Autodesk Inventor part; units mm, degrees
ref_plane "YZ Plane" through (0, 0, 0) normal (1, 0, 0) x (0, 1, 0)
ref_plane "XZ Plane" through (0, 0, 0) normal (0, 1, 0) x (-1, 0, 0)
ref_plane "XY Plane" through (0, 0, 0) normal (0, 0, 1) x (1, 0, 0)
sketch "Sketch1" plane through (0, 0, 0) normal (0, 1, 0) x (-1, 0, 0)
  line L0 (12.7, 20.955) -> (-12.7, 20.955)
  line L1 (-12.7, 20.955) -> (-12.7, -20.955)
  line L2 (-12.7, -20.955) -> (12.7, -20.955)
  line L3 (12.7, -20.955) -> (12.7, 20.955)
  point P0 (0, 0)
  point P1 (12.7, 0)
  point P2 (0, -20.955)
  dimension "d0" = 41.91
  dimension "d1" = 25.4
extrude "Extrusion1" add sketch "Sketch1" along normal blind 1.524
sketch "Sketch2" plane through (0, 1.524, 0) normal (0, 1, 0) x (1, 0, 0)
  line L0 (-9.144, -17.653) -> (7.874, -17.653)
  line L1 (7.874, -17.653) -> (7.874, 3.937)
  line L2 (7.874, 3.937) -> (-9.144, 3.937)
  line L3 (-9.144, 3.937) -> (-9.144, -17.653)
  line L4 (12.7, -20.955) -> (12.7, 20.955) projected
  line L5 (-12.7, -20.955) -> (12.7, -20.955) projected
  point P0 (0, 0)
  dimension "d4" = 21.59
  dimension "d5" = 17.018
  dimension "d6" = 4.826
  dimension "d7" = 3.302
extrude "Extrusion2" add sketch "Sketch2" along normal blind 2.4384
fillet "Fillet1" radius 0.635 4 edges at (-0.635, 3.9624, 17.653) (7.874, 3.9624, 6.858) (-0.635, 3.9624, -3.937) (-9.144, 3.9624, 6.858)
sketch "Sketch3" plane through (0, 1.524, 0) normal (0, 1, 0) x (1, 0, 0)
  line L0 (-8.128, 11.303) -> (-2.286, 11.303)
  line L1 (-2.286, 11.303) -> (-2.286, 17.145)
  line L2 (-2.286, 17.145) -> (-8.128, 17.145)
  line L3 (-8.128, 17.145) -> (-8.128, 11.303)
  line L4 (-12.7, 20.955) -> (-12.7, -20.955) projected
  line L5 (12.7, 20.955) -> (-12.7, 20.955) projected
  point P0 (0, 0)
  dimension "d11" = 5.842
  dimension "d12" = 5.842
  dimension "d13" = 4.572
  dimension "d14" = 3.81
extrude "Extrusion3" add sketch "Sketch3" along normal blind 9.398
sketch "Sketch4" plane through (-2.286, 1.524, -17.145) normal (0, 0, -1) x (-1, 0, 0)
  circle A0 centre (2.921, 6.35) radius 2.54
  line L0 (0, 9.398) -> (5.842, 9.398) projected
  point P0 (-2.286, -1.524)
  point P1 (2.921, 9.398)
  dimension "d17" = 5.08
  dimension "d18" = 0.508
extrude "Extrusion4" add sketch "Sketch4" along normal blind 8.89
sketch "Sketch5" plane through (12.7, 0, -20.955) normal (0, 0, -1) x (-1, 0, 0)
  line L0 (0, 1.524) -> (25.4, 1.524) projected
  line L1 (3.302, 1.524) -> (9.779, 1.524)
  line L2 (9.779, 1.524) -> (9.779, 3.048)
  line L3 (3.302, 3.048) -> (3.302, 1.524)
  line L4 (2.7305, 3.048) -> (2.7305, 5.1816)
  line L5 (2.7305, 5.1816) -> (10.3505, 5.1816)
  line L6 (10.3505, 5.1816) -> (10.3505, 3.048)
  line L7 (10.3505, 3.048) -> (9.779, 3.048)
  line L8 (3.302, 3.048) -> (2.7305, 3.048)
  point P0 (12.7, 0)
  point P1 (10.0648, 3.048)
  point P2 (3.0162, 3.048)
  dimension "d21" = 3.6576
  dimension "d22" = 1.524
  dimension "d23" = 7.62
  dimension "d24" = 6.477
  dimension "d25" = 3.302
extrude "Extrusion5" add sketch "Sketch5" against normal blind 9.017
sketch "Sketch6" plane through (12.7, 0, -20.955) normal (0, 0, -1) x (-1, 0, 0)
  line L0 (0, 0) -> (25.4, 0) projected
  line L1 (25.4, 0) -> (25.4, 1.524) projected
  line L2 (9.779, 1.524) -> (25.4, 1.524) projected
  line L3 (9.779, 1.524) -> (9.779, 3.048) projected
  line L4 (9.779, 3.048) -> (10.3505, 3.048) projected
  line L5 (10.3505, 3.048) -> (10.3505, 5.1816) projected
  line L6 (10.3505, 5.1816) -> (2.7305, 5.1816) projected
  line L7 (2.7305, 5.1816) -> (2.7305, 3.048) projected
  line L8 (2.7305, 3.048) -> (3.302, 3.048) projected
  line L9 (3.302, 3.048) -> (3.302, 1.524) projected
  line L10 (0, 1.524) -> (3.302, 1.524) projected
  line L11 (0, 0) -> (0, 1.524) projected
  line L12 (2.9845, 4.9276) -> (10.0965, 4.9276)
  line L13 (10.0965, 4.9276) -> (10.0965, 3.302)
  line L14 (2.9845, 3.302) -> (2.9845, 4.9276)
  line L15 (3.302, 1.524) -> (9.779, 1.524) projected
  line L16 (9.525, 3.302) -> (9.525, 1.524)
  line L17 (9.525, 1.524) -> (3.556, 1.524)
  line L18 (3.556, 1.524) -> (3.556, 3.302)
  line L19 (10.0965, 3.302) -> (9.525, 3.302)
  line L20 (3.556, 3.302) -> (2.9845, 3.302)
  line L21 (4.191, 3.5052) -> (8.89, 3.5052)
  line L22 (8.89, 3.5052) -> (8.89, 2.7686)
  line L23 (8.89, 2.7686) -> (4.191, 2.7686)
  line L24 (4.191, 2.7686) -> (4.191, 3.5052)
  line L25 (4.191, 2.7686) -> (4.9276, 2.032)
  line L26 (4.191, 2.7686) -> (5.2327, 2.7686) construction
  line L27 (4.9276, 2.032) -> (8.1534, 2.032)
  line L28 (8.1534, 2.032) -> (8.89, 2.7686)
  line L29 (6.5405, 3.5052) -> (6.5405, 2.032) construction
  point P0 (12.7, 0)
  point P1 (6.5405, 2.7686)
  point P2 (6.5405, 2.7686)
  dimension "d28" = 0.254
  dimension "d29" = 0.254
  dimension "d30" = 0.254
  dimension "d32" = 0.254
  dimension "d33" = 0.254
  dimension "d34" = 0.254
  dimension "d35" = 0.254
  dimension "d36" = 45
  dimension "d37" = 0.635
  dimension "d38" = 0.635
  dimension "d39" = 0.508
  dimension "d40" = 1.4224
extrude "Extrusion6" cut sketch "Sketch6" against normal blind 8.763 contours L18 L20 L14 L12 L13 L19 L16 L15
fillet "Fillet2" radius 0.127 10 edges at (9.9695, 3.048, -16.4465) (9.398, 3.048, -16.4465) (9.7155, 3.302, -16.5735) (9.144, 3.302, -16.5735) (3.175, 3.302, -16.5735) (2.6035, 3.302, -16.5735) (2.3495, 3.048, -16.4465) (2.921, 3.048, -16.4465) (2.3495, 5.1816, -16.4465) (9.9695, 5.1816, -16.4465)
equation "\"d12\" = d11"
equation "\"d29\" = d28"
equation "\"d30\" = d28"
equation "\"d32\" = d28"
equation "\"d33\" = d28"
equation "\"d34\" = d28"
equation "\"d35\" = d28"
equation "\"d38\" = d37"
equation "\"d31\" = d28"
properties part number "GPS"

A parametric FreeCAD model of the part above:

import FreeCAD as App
import Part
import Sketcher
from FreeCAD import Vector
Q = App.Units.Quantity


def edges_at(feature, points):
    """Names of the edges that pass closest to the given points."""
    edges = feature.Shape.Edges
    near = lambda p: min(range(len(edges)), key=lambda i: edges[i].distToShape(Part.Vertex(*p))[0])
    return sorted({f"Edge{near(p) + 1}" for p in points})

doc = App.newDocument("Part")
params = doc.addObject("Spreadsheet::Sheet", "Params")
for row, (alias, value) in enumerate([
    ("sketch1_width", "1 in"),
    ("sketch1_height", "1.65 in"),
    ("pad1_length", "0.06 in"),
    ("sketch2_width", "0.67 in"),
    ("sketch2_height", "0.85 in"),
    ("pad2_length", "0.096 in"),
    ("fillet_radius", "0.025 in"),
    ("sketch3_width", "0.23 in"),
    ("pad3_length", "0.37 in"),
    ("sketch4_diameter", "0.2 in"),
    ("pad4_length", "0.35 in"),
    ("sketch5_width", "0.3 in"),
    ("sketch5_height", "0.06 in"),
    ("sketch5_width2", "0.255 in"),
    ("pad5_length", "0.355 in"),
    ("sketch6_width", "0.28 in"),
    ("sketch6_height", "0.07 in"),
    ("sketch6_width2", "0.235 in"),
    ("sketch6_width3", "0.127 in"),
    ("sketch6_height2", "0.064 in"),
    ("pocket1_length", "0.345 in"),
    ("fillet2_radius", "0.005 in"),
], start=1):
    params.set(f"A{row}", alias)
    params.set(f"B{row}", "=" + value)
    params.setAlias(f"B{row}", alias)

body = doc.addObject("PartDesign::Body", "Body")

sketch1 = body.newObject("Sketcher::SketchObject", "Sketch")
sketch1.AttachmentSupport = (doc.getObject("XZ_Plane"), [""])
sketch1.MapMode = "FlatFace"
sketch1.addGeometry([
    Part.LineSegment(Vector(-13, -21, 0), Vector(-13, 21, 0)),
    Part.LineSegment(Vector(-13, 21, 0), Vector(13, 21, 0)),
    Part.LineSegment(Vector(13, 21, 0), Vector(13, -21, 0)),
    Part.LineSegment(Vector(13, -21, 0), Vector(-13, -21, 0)),
], False)
sketch1.addConstraint([
    Sketcher.Constraint("Coincident", 0, 2, 1, 1),
    Sketcher.Constraint("Coincident", 1, 2, 2, 1),
    Sketcher.Constraint("Coincident", 2, 2, 3, 1),
    Sketcher.Constraint("Coincident", 3, 2, 0, 1),
    Sketcher.Constraint("Vertical", 0),
    Sketcher.Constraint("Horizontal", 1),
    Sketcher.Constraint("Vertical", 2),
    Sketcher.Constraint("Horizontal", 3),
    Sketcher.Constraint("Symmetric", 0, 2, 2, 2, -1, 1),
    Sketcher.Constraint("DistanceX", 1, 1, 1, 2, Q("1 in")),
    Sketcher.Constraint("DistanceY", 0, 1, 0, 2, Q("1.65 in")),
])
sketch1.setExpression("Constraints[9]", "Params.sketch1_width")
sketch1.setExpression("Constraints[10]", "Params.sketch1_height")
pad1 = body.newObject("PartDesign::Pad", "Pad")
pad1.Profile = sketch1
pad1.setExpression("Length", "Params.pad1_length")
pad1.Reversed = True

sketch2 = body.newObject("Sketcher::SketchObject", "Sketch001")
sketch2.AttachmentSupport = (doc.getObject("XZ_Plane"), [""])
sketch2.MapMode = "FlatFace"
sketch2.AttachmentOffset = App.Placement(Vector(0, 0, -0.06 * 25.4), App.Rotation())
sketch2.addGeometry([
    Part.LineSegment(Vector(-9, -4, 0), Vector(-9, 18, 0)),
    Part.LineSegment(Vector(-9, 18, 0), Vector(8, 18, 0)),
    Part.LineSegment(Vector(8, 18, 0), Vector(8, -4, 0)),
    Part.LineSegment(Vector(8, -4, 0), Vector(-9, -4, 0)),
], False)
sketch2.addConstraint([
    Sketcher.Constraint("Coincident", 0, 2, 1, 1),
    Sketcher.Constraint("Coincident", 1, 2, 2, 1),
    Sketcher.Constraint("Coincident", 2, 2, 3, 1),
    Sketcher.Constraint("Coincident", 3, 2, 0, 1),
    Sketcher.Constraint("Vertical", 0),
    Sketcher.Constraint("Horizontal", 1),
    Sketcher.Constraint("Vertical", 2),
    Sketcher.Constraint("Horizontal", 3),
    Sketcher.Constraint("DistanceX", 1, 1, 1, 2, Q("0.67 in")),
    Sketcher.Constraint("DistanceY", 0, 1, 0, 2, Q("0.85 in")),
    Sketcher.Constraint("DistanceX", 0, 2, -1, 1, Q("0.36 in")),
    Sketcher.Constraint("DistanceY", -1, 1, 0, 2, Q("0.695 in")),
])
sketch2.setExpression("Constraints[8]", "Params.sketch2_width")
sketch2.setExpression("Constraints[9]", "Params.sketch2_height")
pad2 = body.newObject("PartDesign::Pad", "Pad001")
pad2.Profile = sketch2
pad2.setExpression("Length", "Params.pad2_length")
pad2.Reversed = True
doc.recompute()

fillet = body.newObject("PartDesign::Fillet", "Fillet")
fillet.Base = (pad2, edges_at(pad2, [
    (-0.635, 3.962, 17.653),
    (7.874, 3.962, 6.858),
    (-0.635, 3.962, -3.937),
    (-9.144, 3.962, 6.858),
]))
fillet.setExpression("Radius", "Params.fillet_radius")

sketch3 = body.newObject("Sketcher::SketchObject", "Sketch002")
sketch3.AttachmentSupport = (doc.getObject("XZ_Plane"), [""])
sketch3.MapMode = "FlatFace"
sketch3.AttachmentOffset = App.Placement(Vector(0, 0, -0.06 * 25.4), App.Rotation())
sketch3.addGeometry([
    Part.LineSegment(Vector(-8, -17, 0), Vector(-8, -11, 0)),
    Part.LineSegment(Vector(-8, -11, 0), Vector(-2, -11, 0)),
    Part.LineSegment(Vector(-2, -11, 0), Vector(-2, -17, 0)),
    Part.LineSegment(Vector(-2, -17, 0), Vector(-8, -17, 0)),
], False)
sketch3.addConstraint([
    Sketcher.Constraint("Coincident", 0, 2, 1, 1),
    Sketcher.Constraint("Coincident", 1, 2, 2, 1),
    Sketcher.Constraint("Coincident", 2, 2, 3, 1),
    Sketcher.Constraint("Coincident", 3, 2, 0, 1),
    Sketcher.Constraint("Vertical", 0),
    Sketcher.Constraint("Horizontal", 1),
    Sketcher.Constraint("Vertical", 2),
    Sketcher.Constraint("Horizontal", 3),
    Sketcher.Constraint("Equal", 3, 0),
    Sketcher.Constraint("DistanceX", 1, 1, 1, 2, Q("0.23 in")),
    Sketcher.Constraint("DistanceX", 0, 2, -1, 1, Q("0.32 in")),
    Sketcher.Constraint("DistanceY", 0, 2, -1, 1, Q("0.445 in")),
])
sketch3.setExpression("Constraints[9]", "Params.sketch3_width")
pad3 = body.newObject("PartDesign::Pad", "Pad002")
pad3.Profile = sketch3
pad3.setExpression("Length", "Params.pad3_length")
pad3.Reversed = True

sketch4 = body.newObject("Sketcher::SketchObject", "Sketch003")
sketch4.AttachmentSupport = (doc.getObject("XY_Plane"), [""])
sketch4.MapMode = "FlatFace"
sketch4.AttachmentOffset = App.Placement(Vector(0, 0, -0.675 * 25.4), App.Rotation())
sketch4.addGeometry(Part.Circle(Vector(-5.2, 7.9, 0), Vector(0, 0, 1), 2.5), False)
sketch4.addConstraint([
    Sketcher.Constraint("Diameter", 0, Q("0.2 in")),
    Sketcher.Constraint("DistanceY", -1, 1, 0, 3, Q("0.31 in")),
    Sketcher.Constraint("DistanceX", 0, 3, -1, 1, Q("0.205 in")),
])
sketch4.setExpression("Constraints[0]", "Params.sketch4_diameter")
pad4 = body.newObject("PartDesign::Pad", "Pad003")
pad4.Profile = sketch4
pad4.setExpression("Length", "Params.pad4_length")
pad4.Reversed = True

sketch5 = body.newObject("Sketcher::SketchObject", "Sketch004")
sketch5.AttachmentSupport = (doc.getObject("XY_Plane"), [""])
sketch5.MapMode = "FlatFace"
sketch5.AttachmentOffset = App.Placement(Vector(0, 0, -0.825 * 25.4), App.Rotation())
sketch5.addGeometry([
    Part.LineSegment(Vector(9.4, 3, 0), Vector(9.4, 1.5, 0)),
    Part.LineSegment(Vector(9.4, 1.5, 0), Vector(2.9, 1.5, 0)),
    Part.LineSegment(Vector(2.9, 1.5, 0), Vector(2.9, 3, 0)),
    Part.LineSegment(Vector(2.9, 3, 0), Vector(2.3, 3, 0)),
    Part.LineSegment(Vector(2.3, 3, 0), Vector(2.3, 5.2, 0)),
    Part.LineSegment(Vector(2.3, 5.2, 0), Vector(10, 5.2, 0)),
    Part.LineSegment(Vector(10, 5.2, 0), Vector(10, 3, 0)),
    Part.LineSegment(Vector(10, 3, 0), Vector(9.4, 3, 0)),
], False)
sketch5.addConstraint([
    Sketcher.Constraint("Coincident", 0, 2, 1, 1),
    Sketcher.Constraint("Coincident", 1, 2, 2, 1),
    Sketcher.Constraint("Coincident", 2, 2, 3, 1),
    Sketcher.Constraint("Coincident", 3, 2, 4, 1),
    Sketcher.Constraint("Coincident", 4, 2, 5, 1),
    Sketcher.Constraint("Coincident", 5, 2, 6, 1),
    Sketcher.Constraint("Coincident", 6, 2, 7, 1),
    Sketcher.Constraint("Coincident", 7, 2, 0, 1),
    Sketcher.Constraint("Vertical", 0),
    Sketcher.Constraint("Horizontal", 1),
    Sketcher.Constraint("Vertical", 2),
    Sketcher.Constraint("Horizontal", 3),
    Sketcher.Constraint("Vertical", 4),
    Sketcher.Constraint("Horizontal", 5),
    Sketcher.Constraint("Vertical", 6),
    Sketcher.Constraint("Horizontal", 7),
    Sketcher.Constraint("Horizontal", 3, 2, 6, 2),
    Sketcher.Constraint("Equal", 3, 7),
    Sketcher.Constraint("DistanceX", 5, 1, 5, 2, Q("0.3 in")),
    Sketcher.Constraint("DistanceY", 0, 2, 0, 1, Q("0.06 in")),
    Sketcher.Constraint("DistanceX", 1, 2, 1, 1, Q("0.255 in")),
    Sketcher.Constraint("DistanceY", -1, 1, 0, 2, Q("0.06 in")),
    Sketcher.Constraint("DistanceY", 1, 2, 4, 2, Q("0.144 in")),
    Sketcher.Constraint("DistanceX", -1, 1, 0, 2, Q("0.37 in")),
])
sketch5.setExpression("Constraints[18]", "Params.sketch5_width")
sketch5.setExpression("Constraints[19]", "Params.sketch5_height")
sketch5.setExpression("Constraints[20]", "Params.sketch5_width2")
pad5 = body.newObject("PartDesign::Pad", "Pad004")
pad5.Profile = sketch5
pad5.setExpression("Length", "Params.pad5_length")

sketch6 = body.newObject("Sketcher::SketchObject", "Sketch005")
sketch6.AttachmentSupport = (doc.getObject("XY_Plane"), [""])
sketch6.MapMode = "FlatFace"
sketch6.AttachmentOffset = App.Placement(Vector(0, 0, -0.825 * 25.4), App.Rotation())
sketch6.addGeometry([
    Part.LineSegment(Vector(9.1, 3.3, 0), Vector(9.1, 1.5, 0)),
    Part.LineSegment(Vector(9.1, 1.5, 0), Vector(3.2, 1.5, 0)),
    Part.LineSegment(Vector(3.2, 1.5, 0), Vector(3.2, 3.3, 0)),
    Part.LineSegment(Vector(3.2, 3.3, 0), Vector(2.6, 3.3, 0)),
    Part.LineSegment(Vector(2.6, 3.3, 0), Vector(2.6, 4.9, 0)),
    Part.LineSegment(Vector(2.6, 4.9, 0), Vector(9.7, 4.9, 0)),
    Part.LineSegment(Vector(9.7, 4.9, 0), Vector(9.7, 3.3, 0)),
    Part.LineSegment(Vector(9.7, 3.3, 0), Vector(9.1, 3.3, 0)),
    Part.LineSegment(Vector(8.5, 2.8, 0), Vector(8.5, 3.5, 0)),
    Part.LineSegment(Vector(8.5, 3.5, 0), Vector(3.8, 3.5, 0)),
    Part.LineSegment(Vector(3.8, 3.5, 0), Vector(3.8, 2.8, 0)),
    Part.LineSegment(Vector(3.8, 2.8, 0), Vector(4.5, 2, 0)),
    Part.LineSegment(Vector(4.5, 2, 0), Vector(7.8, 2, 0)),
    Part.LineSegment(Vector(7.8, 2, 0), Vector(8.5, 2.8, 0)),
], False)
sketch6.addConstraint([
    Sketcher.Constraint("Coincident", 0, 2, 1, 1),
    Sketcher.Constraint("Coincident", 1, 2, 2, 1),
    Sketcher.Constraint("Coincident", 2, 2, 3, 1),
    Sketcher.Constraint("Coincident", 3, 2, 4, 1),
    Sketcher.Constraint("Coincident", 4, 2, 5, 1),
    Sketcher.Constraint("Coincident", 5, 2, 6, 1),
    Sketcher.Constraint("Coincident", 6, 2, 7, 1),
    Sketcher.Constraint("Coincident", 7, 2, 0, 1),
    Sketcher.Constraint("Coincident", 8, 2, 9, 1),
    Sketcher.Constraint("Coincident", 9, 2, 10, 1),
    Sketcher.Constraint("Coincident", 10, 2, 11, 1),
    Sketcher.Constraint("Coincident", 11, 2, 12, 1),
    Sketcher.Constraint("Coincident", 12, 2, 13, 1),
    Sketcher.Constraint("Coincident", 13, 2, 8, 1),
    Sketcher.Constraint("Vertical", 0),
    Sketcher.Constraint("Horizontal", 1),
    Sketcher.Constraint("Vertical", 2),
    Sketcher.Constraint("Horizontal", 3),
    Sketcher.Constraint("Vertical", 4),
    Sketcher.Constraint("Horizontal", 5),
    Sketcher.Constraint("Vertical", 6),
    Sketcher.Constraint("Horizontal", 7),
    Sketcher.Constraint("Vertical", 8),
    Sketcher.Constraint("Horizontal", 9),
    Sketcher.Constraint("Vertical", 10),
    Sketcher.Constraint("Horizontal", 12),
    Sketcher.Constraint("Perpendicular", 11, 13),
    Sketcher.Constraint("Horizontal", 3, 2, 6, 2),
    Sketcher.Constraint("Horizontal", 10, 2, 13, 2),
    Sketcher.Constraint("Equal", 3, 7),
    Sketcher.Constraint("Equal", 11, 13),
    Sketcher.Constraint("DistanceY", 1, 2, 11, 2, Q("0.02 in")),
    Sketcher.Constraint("DistanceX", 8, 2, 7, 2, Q("0.025 in")),
    Sketcher.Constraint("DistanceY", 8, 2, 5, 2, Q("0.056 in")),
    Sketcher.Constraint("DistanceX", 2, 2, 9, 2, Q("0.025 in")),
    Sketcher.Constraint("DistanceX", 5, 1, 5, 2, Q("0.28 in")),
    Sketcher.Constraint("DistanceY", 0, 2, 0, 1, Q("0.07 in")),
    Sketcher.Constraint("DistanceX", 1, 2, 1, 1, Q("0.235 in")),
    Sketcher.Constraint("DistanceX", 12, 1, 12, 2, Q("0.127 in")),
    Sketcher.Constraint("DistanceY", 4, 1, 4, 2, Q("0.064 in")),
    Sketcher.Constraint("DistanceX", -1, 1, 0, 2, Q("0.36 in")),
    Sketcher.Constraint("DistanceY", -1, 1, 0, 2, Q("0.06 in")),
])
sketch6.setExpression("Constraints[35]", "Params.sketch6_width")
sketch6.setExpression("Constraints[36]", "Params.sketch6_height")
sketch6.setExpression("Constraints[37]", "Params.sketch6_width2")
sketch6.setExpression("Constraints[38]", "Params.sketch6_width3")
sketch6.setExpression("Constraints[39]", "Params.sketch6_height2")
pocket1 = body.newObject("PartDesign::Pocket", "Pocket")
pocket1.Profile = sketch6
pocket1.setExpression("Length", "Params.pocket1_length")
pocket1.Reversed = True
doc.recompute()

fillet2 = body.newObject("PartDesign::Fillet", "Fillet001")
fillet2.Base = (pocket1, edges_at(pocket1, [
    (9.97, 3.048, -16.447),
    (9.398, 3.048, -16.447),
    (9.716, 3.302, -16.573),
    (9.144, 3.302, -16.573),
    (3.175, 3.302, -16.573),
    (2.603, 3.302, -16.573),
    (2.349, 3.048, -16.447),
    (2.921, 3.048, -16.447),
    (2.349, 5.182, -16.447),
    (9.97, 5.182, -16.447),
]))
fillet2.setExpression("Radius", "Params.fillet2_radius")

doc.recompute()
